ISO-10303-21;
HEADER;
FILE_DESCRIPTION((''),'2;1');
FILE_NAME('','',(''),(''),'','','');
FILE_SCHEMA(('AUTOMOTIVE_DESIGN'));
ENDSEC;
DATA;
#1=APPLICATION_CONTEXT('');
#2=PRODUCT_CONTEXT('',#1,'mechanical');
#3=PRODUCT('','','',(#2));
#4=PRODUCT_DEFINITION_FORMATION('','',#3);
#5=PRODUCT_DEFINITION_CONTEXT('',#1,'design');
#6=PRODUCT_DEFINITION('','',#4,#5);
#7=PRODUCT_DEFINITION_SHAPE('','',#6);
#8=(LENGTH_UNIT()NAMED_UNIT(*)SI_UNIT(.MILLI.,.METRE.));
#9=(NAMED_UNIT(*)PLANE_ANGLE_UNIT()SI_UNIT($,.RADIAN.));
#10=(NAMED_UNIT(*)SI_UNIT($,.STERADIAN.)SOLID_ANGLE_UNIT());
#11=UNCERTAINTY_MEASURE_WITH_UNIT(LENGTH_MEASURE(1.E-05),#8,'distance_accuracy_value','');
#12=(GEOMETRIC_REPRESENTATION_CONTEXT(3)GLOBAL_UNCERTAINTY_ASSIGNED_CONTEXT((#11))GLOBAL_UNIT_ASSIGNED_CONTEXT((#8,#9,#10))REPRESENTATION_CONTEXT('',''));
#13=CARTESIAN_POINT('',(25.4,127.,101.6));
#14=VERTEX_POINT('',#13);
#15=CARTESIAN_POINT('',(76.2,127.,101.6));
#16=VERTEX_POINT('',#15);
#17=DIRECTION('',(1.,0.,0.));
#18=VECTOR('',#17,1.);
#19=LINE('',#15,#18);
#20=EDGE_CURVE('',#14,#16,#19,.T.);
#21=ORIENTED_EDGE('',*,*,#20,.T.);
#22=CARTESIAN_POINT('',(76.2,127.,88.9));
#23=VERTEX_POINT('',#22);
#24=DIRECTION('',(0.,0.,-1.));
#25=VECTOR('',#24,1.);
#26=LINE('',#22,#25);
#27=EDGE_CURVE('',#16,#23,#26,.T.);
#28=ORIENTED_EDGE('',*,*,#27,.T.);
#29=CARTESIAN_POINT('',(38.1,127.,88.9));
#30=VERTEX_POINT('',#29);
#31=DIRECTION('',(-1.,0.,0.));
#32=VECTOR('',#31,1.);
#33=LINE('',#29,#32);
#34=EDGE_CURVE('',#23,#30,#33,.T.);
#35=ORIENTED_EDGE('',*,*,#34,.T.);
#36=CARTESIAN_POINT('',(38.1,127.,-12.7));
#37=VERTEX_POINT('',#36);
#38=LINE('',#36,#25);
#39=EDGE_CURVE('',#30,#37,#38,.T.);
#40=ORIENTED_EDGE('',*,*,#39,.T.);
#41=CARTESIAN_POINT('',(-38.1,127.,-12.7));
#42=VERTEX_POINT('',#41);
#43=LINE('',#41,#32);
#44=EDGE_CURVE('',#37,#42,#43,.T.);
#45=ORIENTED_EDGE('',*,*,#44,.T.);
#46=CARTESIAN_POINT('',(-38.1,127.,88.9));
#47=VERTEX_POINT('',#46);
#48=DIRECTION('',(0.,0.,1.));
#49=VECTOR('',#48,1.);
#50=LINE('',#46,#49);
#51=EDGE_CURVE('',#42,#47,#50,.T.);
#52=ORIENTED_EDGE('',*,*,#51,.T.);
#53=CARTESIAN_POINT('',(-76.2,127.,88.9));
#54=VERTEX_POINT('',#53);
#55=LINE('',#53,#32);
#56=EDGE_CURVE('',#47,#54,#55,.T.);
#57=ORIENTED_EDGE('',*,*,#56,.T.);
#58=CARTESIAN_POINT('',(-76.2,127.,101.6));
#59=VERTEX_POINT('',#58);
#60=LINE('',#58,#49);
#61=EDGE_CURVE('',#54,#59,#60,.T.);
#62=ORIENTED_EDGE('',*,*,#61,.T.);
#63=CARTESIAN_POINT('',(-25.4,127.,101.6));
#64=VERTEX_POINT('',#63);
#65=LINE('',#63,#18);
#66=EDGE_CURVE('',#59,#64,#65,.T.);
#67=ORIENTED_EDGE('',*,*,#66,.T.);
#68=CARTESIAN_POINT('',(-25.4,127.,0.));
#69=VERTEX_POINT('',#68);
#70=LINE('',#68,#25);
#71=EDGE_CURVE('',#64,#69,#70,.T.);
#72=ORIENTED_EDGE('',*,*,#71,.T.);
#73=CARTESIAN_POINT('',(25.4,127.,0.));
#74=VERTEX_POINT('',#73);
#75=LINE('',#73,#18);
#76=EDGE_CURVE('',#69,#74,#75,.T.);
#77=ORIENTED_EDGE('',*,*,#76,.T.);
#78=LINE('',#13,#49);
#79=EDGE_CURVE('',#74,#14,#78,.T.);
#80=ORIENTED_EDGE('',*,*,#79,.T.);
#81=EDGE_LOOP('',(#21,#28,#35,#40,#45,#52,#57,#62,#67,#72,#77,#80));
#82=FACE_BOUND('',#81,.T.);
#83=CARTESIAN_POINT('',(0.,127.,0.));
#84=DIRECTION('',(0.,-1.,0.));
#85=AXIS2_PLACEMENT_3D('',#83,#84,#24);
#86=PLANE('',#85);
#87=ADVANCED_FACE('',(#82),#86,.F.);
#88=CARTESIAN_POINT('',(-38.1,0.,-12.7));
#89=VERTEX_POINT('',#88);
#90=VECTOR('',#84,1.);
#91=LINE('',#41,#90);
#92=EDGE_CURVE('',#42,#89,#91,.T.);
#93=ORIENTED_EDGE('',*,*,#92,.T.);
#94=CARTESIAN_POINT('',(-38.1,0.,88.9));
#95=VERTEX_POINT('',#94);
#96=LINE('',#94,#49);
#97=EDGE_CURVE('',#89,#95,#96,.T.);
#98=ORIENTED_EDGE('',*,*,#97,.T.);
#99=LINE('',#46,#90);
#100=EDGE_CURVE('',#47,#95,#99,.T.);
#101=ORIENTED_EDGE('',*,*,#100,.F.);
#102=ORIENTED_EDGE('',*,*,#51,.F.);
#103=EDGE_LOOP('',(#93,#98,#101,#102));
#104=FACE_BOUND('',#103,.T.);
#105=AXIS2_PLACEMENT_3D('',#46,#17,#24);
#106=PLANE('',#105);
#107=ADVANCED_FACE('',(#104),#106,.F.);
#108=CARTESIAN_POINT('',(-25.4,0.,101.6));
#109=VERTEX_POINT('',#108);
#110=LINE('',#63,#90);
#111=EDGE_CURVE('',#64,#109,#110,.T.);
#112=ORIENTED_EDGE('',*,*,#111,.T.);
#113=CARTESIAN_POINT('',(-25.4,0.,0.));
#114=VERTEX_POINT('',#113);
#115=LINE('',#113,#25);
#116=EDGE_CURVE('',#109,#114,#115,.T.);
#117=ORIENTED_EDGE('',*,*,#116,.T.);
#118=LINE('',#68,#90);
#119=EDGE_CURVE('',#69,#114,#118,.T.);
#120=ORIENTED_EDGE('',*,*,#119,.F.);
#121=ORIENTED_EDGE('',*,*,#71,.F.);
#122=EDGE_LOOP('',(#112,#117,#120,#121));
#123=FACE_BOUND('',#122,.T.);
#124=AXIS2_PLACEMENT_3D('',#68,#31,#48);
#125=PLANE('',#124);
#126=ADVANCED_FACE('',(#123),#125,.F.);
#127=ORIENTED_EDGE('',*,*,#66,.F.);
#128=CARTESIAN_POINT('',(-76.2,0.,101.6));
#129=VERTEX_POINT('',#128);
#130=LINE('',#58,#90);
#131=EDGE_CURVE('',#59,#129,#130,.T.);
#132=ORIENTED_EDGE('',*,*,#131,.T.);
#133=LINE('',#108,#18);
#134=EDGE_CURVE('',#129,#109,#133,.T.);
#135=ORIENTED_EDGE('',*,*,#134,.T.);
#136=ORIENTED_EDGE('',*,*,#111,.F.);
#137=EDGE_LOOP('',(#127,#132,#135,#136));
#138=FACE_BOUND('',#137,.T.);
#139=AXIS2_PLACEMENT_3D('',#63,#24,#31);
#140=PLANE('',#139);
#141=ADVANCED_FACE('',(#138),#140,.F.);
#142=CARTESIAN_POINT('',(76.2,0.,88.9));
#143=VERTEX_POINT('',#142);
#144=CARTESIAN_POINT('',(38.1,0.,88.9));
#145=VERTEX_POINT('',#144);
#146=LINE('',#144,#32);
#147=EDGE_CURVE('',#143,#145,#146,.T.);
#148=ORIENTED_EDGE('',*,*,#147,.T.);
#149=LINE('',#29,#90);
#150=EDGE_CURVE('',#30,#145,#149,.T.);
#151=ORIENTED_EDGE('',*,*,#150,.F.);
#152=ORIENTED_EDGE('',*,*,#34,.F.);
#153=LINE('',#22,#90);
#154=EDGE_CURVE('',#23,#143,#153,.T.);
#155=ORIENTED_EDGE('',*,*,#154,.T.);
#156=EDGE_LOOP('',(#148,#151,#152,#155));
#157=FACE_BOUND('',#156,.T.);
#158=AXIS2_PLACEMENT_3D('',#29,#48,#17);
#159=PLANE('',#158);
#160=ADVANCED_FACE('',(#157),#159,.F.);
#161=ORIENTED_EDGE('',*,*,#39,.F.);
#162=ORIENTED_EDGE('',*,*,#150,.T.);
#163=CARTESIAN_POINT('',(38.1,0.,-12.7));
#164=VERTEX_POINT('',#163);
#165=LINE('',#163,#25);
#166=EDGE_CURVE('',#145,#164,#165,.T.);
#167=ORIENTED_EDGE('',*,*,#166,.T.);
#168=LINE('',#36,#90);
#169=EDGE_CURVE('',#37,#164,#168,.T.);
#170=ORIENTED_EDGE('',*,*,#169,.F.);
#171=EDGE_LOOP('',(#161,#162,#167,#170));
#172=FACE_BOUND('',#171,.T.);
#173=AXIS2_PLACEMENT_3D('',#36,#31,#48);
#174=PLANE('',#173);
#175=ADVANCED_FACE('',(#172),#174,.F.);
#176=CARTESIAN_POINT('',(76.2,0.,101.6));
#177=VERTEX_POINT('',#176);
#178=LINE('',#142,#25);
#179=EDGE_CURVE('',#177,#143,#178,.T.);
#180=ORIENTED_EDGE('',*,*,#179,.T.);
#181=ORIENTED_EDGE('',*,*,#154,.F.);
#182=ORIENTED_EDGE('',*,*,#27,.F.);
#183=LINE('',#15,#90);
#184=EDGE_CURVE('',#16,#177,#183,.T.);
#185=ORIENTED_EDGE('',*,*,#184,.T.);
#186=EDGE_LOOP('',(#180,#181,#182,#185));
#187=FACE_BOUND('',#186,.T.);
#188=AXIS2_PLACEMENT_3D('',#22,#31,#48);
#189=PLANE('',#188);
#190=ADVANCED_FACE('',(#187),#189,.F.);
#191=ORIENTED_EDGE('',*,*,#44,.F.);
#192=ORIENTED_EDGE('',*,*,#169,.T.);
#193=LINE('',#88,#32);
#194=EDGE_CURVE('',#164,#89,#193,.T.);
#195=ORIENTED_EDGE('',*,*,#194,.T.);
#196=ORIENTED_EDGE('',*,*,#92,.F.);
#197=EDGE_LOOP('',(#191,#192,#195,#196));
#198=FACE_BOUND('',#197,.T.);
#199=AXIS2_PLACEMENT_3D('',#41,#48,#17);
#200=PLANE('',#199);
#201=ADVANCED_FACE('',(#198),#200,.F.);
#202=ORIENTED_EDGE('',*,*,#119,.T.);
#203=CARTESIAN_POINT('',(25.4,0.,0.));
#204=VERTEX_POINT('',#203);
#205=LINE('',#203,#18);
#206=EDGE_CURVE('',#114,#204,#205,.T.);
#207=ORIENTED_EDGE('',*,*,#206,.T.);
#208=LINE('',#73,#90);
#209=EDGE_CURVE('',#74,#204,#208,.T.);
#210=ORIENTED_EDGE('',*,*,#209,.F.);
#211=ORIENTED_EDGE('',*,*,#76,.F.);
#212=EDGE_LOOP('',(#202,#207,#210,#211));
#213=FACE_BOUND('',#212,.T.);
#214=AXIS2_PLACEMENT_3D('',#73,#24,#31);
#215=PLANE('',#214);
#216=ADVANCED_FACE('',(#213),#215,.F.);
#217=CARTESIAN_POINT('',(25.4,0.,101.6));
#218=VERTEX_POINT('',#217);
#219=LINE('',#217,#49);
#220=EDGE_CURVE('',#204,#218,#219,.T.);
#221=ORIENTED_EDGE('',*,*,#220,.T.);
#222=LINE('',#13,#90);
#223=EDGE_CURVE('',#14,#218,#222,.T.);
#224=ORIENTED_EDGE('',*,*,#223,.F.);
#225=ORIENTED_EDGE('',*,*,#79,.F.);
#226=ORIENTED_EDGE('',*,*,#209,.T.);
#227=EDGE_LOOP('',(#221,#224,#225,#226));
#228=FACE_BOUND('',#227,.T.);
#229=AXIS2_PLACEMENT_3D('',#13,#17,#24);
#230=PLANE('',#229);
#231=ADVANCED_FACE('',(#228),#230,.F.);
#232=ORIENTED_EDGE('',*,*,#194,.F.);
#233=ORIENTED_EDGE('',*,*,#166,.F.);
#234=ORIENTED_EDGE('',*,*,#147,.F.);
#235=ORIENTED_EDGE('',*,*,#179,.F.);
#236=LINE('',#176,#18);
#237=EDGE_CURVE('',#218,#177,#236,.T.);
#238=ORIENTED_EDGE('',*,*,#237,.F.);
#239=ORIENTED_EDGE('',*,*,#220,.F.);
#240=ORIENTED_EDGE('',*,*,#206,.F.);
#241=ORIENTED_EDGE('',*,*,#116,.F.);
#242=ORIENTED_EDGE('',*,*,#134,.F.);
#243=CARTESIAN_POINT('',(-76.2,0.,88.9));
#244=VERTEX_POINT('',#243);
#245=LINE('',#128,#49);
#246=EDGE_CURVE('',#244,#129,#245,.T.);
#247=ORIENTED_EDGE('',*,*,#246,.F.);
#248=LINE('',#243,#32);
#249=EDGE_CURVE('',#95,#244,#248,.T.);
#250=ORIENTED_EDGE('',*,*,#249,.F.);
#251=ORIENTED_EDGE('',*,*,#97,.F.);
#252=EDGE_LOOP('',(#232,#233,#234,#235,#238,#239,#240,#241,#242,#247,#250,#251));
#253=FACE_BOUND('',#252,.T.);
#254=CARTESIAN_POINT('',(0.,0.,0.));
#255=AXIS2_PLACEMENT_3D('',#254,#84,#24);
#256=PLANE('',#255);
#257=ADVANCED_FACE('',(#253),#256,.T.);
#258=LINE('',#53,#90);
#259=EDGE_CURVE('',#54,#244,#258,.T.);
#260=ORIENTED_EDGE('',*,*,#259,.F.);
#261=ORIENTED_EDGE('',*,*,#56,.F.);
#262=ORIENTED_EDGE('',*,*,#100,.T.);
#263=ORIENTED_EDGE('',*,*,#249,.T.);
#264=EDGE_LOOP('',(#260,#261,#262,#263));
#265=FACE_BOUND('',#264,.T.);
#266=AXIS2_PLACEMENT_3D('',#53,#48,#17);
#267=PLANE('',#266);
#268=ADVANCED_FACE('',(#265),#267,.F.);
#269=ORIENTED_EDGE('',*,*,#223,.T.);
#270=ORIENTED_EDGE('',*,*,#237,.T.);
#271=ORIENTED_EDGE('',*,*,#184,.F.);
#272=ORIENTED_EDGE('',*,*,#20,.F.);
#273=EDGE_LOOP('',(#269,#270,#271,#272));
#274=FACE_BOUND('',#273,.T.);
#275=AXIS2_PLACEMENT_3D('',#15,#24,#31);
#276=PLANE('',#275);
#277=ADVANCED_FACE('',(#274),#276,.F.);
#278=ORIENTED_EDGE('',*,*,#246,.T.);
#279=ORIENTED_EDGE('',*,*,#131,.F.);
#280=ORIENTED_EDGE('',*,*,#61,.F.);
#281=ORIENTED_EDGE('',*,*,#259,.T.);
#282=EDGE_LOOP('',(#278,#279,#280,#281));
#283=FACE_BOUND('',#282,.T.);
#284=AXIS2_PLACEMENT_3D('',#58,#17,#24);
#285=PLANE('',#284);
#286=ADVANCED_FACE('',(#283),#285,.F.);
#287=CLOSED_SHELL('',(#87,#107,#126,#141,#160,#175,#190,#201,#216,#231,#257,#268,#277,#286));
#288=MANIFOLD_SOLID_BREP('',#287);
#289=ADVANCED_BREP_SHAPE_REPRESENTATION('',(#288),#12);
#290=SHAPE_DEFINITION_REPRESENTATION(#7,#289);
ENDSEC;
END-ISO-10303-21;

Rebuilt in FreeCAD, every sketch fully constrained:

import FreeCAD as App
import Part
import Sketcher
from FreeCAD import Vector
Q = App.Units.Quantity


def add_polygon(sketch, points):
    """Adds a closed chain of lines whose ends are joined by coincident constraints."""
    first, n = sketch.GeometryCount, len(points)
    for a, b in zip(points, points[1:] + points[:1]):
        sketch.addGeometry(Part.LineSegment(App.Vector(*a, 0), App.Vector(*b, 0)), False)
    for i in range(n):
        sketch.addConstraint(Sketcher.Constraint("Coincident", first + i, 2, first + (i + 1) % n, 1))

doc = App.newDocument("Part")
body = doc.addObject("PartDesign::Body", "Body")

# Sketch on XZ plane
sketch1 = body.newObject("Sketcher::SketchObject", "Sketch")
sketch1.AttachmentSupport = (doc.getObject("XZ_Plane"), [""])
sketch1.MapMode = "FlatFace"
add_polygon(sketch1, [(76, 102), (76, 89), (38, 89), (38, -13), (-38, -13), (-38, 89), (-76, 89), (-76, 102), (-25, 102), (-25, 0), (25, 0), (25, 102)])  # lines 0-11
sketch1.addConstraint(Sketcher.Constraint("Vertical", 0))
sketch1.addConstraint(Sketcher.Constraint("Horizontal", 1))
sketch1.addConstraint(Sketcher.Constraint("Vertical", 2))
sketch1.addConstraint(Sketcher.Constraint("Horizontal", 3))
sketch1.addConstraint(Sketcher.Constraint("Vertical", 4))
sketch1.addConstraint(Sketcher.Constraint("Horizontal", 5))
sketch1.addConstraint(Sketcher.Constraint("Vertical", 6))
sketch1.addConstraint(Sketcher.Constraint("Horizontal", 7))
sketch1.addConstraint(Sketcher.Constraint("Vertical", 8))
sketch1.addConstraint(Sketcher.Constraint("Horizontal", 9))
sketch1.addConstraint(Sketcher.Constraint("Vertical", 10))
sketch1.addConstraint(Sketcher.Constraint("Horizontal", 11))
sketch1.addConstraint(Sketcher.Constraint("Symmetric", 8, 2, 9, 2, -1, 1))
sketch1.addConstraint(Sketcher.Constraint("Symmetric", 1, 2, 4, 2, -2))
sketch1.addConstraint(Sketcher.Constraint("Symmetric", 6, 2, 11, 2, -2))
sketch1.addConstraint(Sketcher.Constraint("Equal", 7, 9))
sketch1.addConstraint(Sketcher.Constraint("Equal", 4, 8))
sketch1.addConstraint(Sketcher.Constraint("DistanceX", 3, 2, 3, 1, Q("3 in")))
sketch1.addConstraint(Sketcher.Constraint("DistanceX", 7, 1, 7, 2, Q("2 in")))
sketch1.addConstraint(Sketcher.Constraint("DistanceY", 2, 2, 2, 1, Q("4 in")))
sketch1.addConstraint(Sketcher.Constraint("DistanceY", 0, 2, 0, 1, Q("0.5 in")))
pad1 = body.newObject("PartDesign::Pad", "Pad")
pad1.Profile = sketch1
pad1.Length = Q("5 in")
pad1.Reversed = True

doc.recompute()
